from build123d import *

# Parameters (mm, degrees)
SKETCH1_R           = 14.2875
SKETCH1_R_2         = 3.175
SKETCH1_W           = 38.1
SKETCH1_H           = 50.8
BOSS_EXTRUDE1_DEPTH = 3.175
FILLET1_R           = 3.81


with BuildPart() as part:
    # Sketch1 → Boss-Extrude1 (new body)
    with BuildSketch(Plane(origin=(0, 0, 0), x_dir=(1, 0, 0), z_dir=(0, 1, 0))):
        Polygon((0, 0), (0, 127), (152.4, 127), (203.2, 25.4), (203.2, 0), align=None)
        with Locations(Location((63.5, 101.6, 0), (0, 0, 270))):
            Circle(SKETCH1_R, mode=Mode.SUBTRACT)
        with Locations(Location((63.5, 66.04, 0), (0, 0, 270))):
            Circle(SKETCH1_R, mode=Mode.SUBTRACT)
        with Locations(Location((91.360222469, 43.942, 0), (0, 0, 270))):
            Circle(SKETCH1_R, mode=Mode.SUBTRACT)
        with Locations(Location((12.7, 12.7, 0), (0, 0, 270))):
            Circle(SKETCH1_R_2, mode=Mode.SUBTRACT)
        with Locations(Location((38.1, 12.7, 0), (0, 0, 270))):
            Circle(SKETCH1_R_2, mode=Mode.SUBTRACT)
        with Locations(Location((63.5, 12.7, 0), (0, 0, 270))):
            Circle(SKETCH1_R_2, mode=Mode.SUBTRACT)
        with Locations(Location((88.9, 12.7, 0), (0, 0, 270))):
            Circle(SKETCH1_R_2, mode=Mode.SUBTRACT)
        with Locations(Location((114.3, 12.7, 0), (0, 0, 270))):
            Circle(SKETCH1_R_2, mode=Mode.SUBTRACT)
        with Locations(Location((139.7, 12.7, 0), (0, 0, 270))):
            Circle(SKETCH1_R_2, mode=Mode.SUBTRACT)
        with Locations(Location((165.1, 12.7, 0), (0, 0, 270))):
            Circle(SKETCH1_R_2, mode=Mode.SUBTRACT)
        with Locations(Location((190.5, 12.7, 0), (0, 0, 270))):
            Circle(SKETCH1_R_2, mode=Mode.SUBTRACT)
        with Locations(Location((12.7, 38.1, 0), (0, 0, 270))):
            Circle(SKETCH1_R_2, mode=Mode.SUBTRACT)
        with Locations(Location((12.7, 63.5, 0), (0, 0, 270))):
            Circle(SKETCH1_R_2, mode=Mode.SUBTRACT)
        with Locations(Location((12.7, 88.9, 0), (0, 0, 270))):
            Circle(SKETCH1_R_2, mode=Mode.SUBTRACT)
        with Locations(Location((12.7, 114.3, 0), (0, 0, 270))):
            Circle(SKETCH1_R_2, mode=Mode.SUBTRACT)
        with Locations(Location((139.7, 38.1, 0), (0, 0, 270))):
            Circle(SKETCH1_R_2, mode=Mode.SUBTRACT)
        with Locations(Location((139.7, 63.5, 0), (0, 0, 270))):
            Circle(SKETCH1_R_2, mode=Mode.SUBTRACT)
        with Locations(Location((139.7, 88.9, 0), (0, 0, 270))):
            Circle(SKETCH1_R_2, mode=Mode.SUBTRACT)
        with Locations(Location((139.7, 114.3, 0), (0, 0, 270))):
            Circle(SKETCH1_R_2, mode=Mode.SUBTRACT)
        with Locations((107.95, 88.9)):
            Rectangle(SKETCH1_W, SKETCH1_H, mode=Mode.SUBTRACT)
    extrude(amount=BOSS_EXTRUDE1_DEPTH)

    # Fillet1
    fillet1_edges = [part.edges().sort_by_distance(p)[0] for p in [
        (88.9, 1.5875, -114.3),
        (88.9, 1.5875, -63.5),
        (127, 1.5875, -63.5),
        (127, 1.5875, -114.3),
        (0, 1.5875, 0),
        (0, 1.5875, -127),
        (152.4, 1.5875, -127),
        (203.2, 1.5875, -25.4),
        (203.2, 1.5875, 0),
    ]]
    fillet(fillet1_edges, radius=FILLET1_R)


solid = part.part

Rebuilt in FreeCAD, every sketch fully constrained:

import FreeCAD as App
import Part
import Sketcher
from FreeCAD import Vector
Q = App.Units.Quantity


def edges_at(feature, points):
    """Names of the edges that pass closest to the given points."""
    edges = feature.Shape.Edges
    near = lambda p: min(range(len(edges)), key=lambda i: edges[i].distToShape(Part.Vertex(*p))[0])
    return sorted({f"Edge{near(p) + 1}" for p in points})


def add_polygon(sketch, points):
    """Adds a closed chain of lines whose ends are joined by coincident constraints."""
    first, n = sketch.GeometryCount, len(points)
    for a, b in zip(points, points[1:] + points[:1]):
        sketch.addGeometry(Part.LineSegment(App.Vector(*a, 0), App.Vector(*b, 0)), False)
    for i in range(n):
        sketch.addConstraint(Sketcher.Constraint("Coincident", first + i, 2, first + (i + 1) % n, 1))

doc = App.newDocument("Part")
body = doc.addObject("PartDesign::Body", "Body")

# Sketch on XZ plane
sketch1 = body.newObject("Sketcher::SketchObject", "Sketch")
sketch1.AttachmentSupport = (doc.getObject("XZ_Plane"), [""])
sketch1.MapMode = "FlatFace"
add_polygon(sketch1, [(0, -127), (0, 0), (203.2, 0), (203.2, -25.4), (152.4, -127)])  # lines 0-4
sketch1.addGeometry(Part.Circle(Vector(190.5, -12.7, 0), Vector(0, 0, 1), 3.2), False)  # 5
sketch1.addGeometry(Part.Circle(Vector(165.1, -12.7, 0), Vector(0, 0, 1), 3.2), False)  # 6
sketch1.addGeometry(Part.Circle(Vector(139.7, -12.7, 0), Vector(0, 0, 1), 3.2), False)  # 7
sketch1.addGeometry(Part.Circle(Vector(114.3, -12.7, 0), Vector(0, 0, 1), 3.2), False)  # 8
sketch1.addGeometry(Part.Circle(Vector(139.7, -38.1, 0), Vector(0, 0, 1), 3.2), False)  # 9
sketch1.addGeometry(Part.Circle(Vector(88.9, -12.7, 0), Vector(0, 0, 1), 3.2), False)  # 10
sketch1.addGeometry(Part.Circle(Vector(63.5, -12.7, 0), Vector(0, 0, 1), 3.2), False)  # 11
sketch1.addGeometry(Part.Circle(Vector(38.1, -12.7, 0), Vector(0, 0, 1), 3.2), False)  # 12
sketch1.addGeometry(Part.Circle(Vector(12.7, -12.7, 0), Vector(0, 0, 1), 3.2), False)  # 13
sketch1.addGeometry(Part.Circle(Vector(91.4, -43.9, 0), Vector(0, 0, 1), 14.3), False)  # 14
sketch1.addGeometry(Part.Circle(Vector(12.7, -38.1, 0), Vector(0, 0, 1), 3.2), False)  # 15
sketch1.addGeometry(Part.Circle(Vector(139.7, -63.5, 0), Vector(0, 0, 1), 3.2), False)  # 16
sketch1.addGeometry(Part.Circle(Vector(139.7, -88.9, 0), Vector(0, 0, 1), 3.2), False)  # 17
add_polygon(sketch1, [(88.9, -63.5), (88.9, -114.3), (127, -114.3), (127, -63.5)])  # lines 18-21
sketch1.addGeometry(Part.Circle(Vector(139.7, -114.3, 0), Vector(0, 0, 1), 3.2), False)  # 22
sketch1.addGeometry(Part.Circle(Vector(63.5, -66, 0), Vector(0, 0, 1), 14.3), False)  # 23
sketch1.addGeometry(Part.Circle(Vector(12.7, -63.5, 0), Vector(0, 0, 1), 3.2), False)  # 24
sketch1.addGeometry(Part.Circle(Vector(12.7, -88.9, 0), Vector(0, 0, 1), 3.2), False)  # 25
sketch1.addGeometry(Part.Circle(Vector(63.5, -101.6, 0), Vector(0, 0, 1), 14.3), False)  # 26
sketch1.addGeometry(Part.Circle(Vector(12.7, -114.3, 0), Vector(0, 0, 1), 3.2), False)  # 27
sketch1.addConstraint(Sketcher.Constraint("Vertical", 0))
sketch1.addConstraint(Sketcher.Constraint("Horizontal", 1))
sketch1.addConstraint(Sketcher.Constraint("Vertical", 2))
sketch1.addConstraint(Sketcher.Constraint("Horizontal", 4))
sketch1.addConstraint(Sketcher.Constraint("Vertical", 18))
sketch1.addConstraint(Sketcher.Constraint("Horizontal", 19))
sketch1.addConstraint(Sketcher.Constraint("Vertical", 20))
sketch1.addConstraint(Sketcher.Constraint("Horizontal", 21))
sketch1.addConstraint(Sketcher.Constraint("Coincident", 0, 2, -1, 1))
sketch1.addConstraint(Sketcher.Constraint("Equal", 5, 6))
sketch1.addConstraint(Sketcher.Constraint("Equal", 6, 7))
sketch1.addConstraint(Sketcher.Constraint("Equal", 7, 8))
sketch1.addConstraint(Sketcher.Constraint("Equal", 8, 9))
sketch1.addConstraint(Sketcher.Constraint("Equal", 9, 10))
sketch1.addConstraint(Sketcher.Constraint("Equal", 10, 11))
sketch1.addConstraint(Sketcher.Constraint("Equal", 11, 12))
sketch1.addConstraint(Sketcher.Constraint("Equal", 12, 13))
sketch1.addConstraint(Sketcher.Constraint("Equal", 13, 15))
sketch1.addConstraint(Sketcher.Constraint("Equal", 15, 16))
sketch1.addConstraint(Sketcher.Constraint("Equal", 16, 17))
sketch1.addConstraint(Sketcher.Constraint("Equal", 17, 22))
sketch1.addConstraint(Sketcher.Constraint("Equal", 14, 23))
sketch1.addConstraint(Sketcher.Constraint("Equal", 22, 24))
sketch1.addConstraint(Sketcher.Constraint("Equal", 24, 25))
sketch1.addConstraint(Sketcher.Constraint("Equal", 23, 26))
sketch1.addConstraint(Sketcher.Constraint("Equal", 25, 27))
sketch1.addConstraint(Sketcher.Constraint("Horizontal", 5, 3, 6, 3))
sketch1.addConstraint(Sketcher.Constraint("Horizontal", 6, 3, 7, 3))
sketch1.addConstraint(Sketcher.Constraint("Horizontal", 7, 3, 8, 3))
sketch1.addConstraint(Sketcher.Constraint("Horizontal", 8, 3, 10, 3))
sketch1.addConstraint(Sketcher.Constraint("Horizontal", 10, 3, 11, 3))
sketch1.addConstraint(Sketcher.Constraint("Horizontal", 11, 3, 12, 3))
sketch1.addConstraint(Sketcher.Constraint("Horizontal", 12, 3, 13, 3))
sketch1.addConstraint(Sketcher.Constraint("Horizontal", 9, 3, 15, 3))
sketch1.addConstraint(Sketcher.Constraint("Horizontal", 16, 3, 24, 3))
sketch1.addConstraint(Sketcher.Constraint("Horizontal", 17, 3, 25, 3))
sketch1.addConstraint(Sketcher.Constraint("Horizontal", 22, 3, 27, 3))
sketch1.addConstraint(Sketcher.Constraint("Horizontal", 27, 3, 18, 2))
sketch1.addConstraint(Sketcher.Constraint("Horizontal", 24, 3, 20, 2))
sketch1.addConstraint(Sketcher.Constraint("Vertical", 7, 3, 9, 3))
sketch1.addConstraint(Sketcher.Constraint("Vertical", 13, 3, 15, 3))
sketch1.addConstraint(Sketcher.Constraint("Vertical", 9, 3, 16, 3))
sketch1.addConstraint(Sketcher.Constraint("Vertical", 16, 3, 17, 3))
sketch1.addConstraint(Sketcher.Constraint("Vertical", 17, 3, 22, 3))
sketch1.addConstraint(Sketcher.Constraint("Vertical", 11, 3, 23, 3))
sketch1.addConstraint(Sketcher.Constraint("Vertical", 15, 3, 24, 3))
sketch1.addConstraint(Sketcher.Constraint("Vertical", 24, 3, 25, 3))
sketch1.addConstraint(Sketcher.Constraint("Vertical", 23, 3, 26, 3))
sketch1.addConstraint(Sketcher.Constraint("Vertical", 25, 3, 27, 3))
sketch1.addConstraint(Sketcher.Constraint("Vertical", 10, 3, 18, 2))
sketch1.addConstraint(Sketcher.Constraint("Diameter", 5, Q("0.25 in")))
sketch1.addConstraint(Sketcher.Constraint("DistanceX", 1, 1, 1, 2, Q("8 in")))
sketch1.addConstraint(Sketcher.Constraint("DistanceX", 4, 2, 4, 1, Q("6 in")))
sketch1.addConstraint(Sketcher.Constraint("DistanceY", 0, 1, 0, 2, Q("5 in")))
sketch1.addConstraint(Sketcher.Constraint("DistanceY", 2, 2, 2, 1, Q("1 in")))
sketch1.addConstraint(Sketcher.Constraint("DistanceY", 18, 2, 18, 1, Q("2 in")))
sketch1.addConstraint(Sketcher.Constraint("Diameter", 14, Q("1.125 in")))
sketch1.addConstraint(Sketcher.Constraint("DistanceX", 19, 1, 19, 2, Q("1.5 in")))
sketch1.addConstraint(Sketcher.Constraint("DistanceY", 26, 3, -1, 1, Q("4 in")))
sketch1.addConstraint(Sketcher.Constraint("DistanceX", -1, 1, 19, 2, Q("5 in")))
sketch1.addConstraint(Sketcher.Constraint("DistanceX", 6, 3, 5, 3, Q("1 in")))
sketch1.addConstraint(Sketcher.Constraint("DistanceX", 7, 3, 6, 3, Q("1 in")))
sketch1.addConstraint(Sketcher.Constraint("DistanceX", 8, 3, 7, 3, Q("1 in")))
sketch1.addConstraint(Sketcher.Constraint("DistanceY", 9, 3, 7, 3, Q("1 in")))
sketch1.addConstraint(Sketcher.Constraint("DistanceX", 10, 3, 8, 3, Q("1 in")))
sketch1.addConstraint(Sketcher.Constraint("DistanceX", 11, 3, 10, 3, Q("1 in")))
sketch1.addConstraint(Sketcher.Constraint("DistanceX", 12, 3, 11, 3, Q("1 in")))
sketch1.addConstraint(Sketcher.Constraint("DistanceX", 13, 3, 12, 3, Q("1 in")))
sketch1.addConstraint(Sketcher.Constraint("DistanceY", 16, 3, 9, 3, Q("1 in")))
sketch1.addConstraint(Sketcher.Constraint("DistanceY", 17, 3, 16, 3, Q("1 in")))
sketch1.addConstraint(Sketcher.Constraint("DistanceY", 5, 3, -1, 1, Q("0.5 in")))
sketch1.addConstraint(Sketcher.Constraint("DistanceY", 23, 3, -1, 1, Q("2.6 in")))
sketch1.addConstraint(Sketcher.Constraint("DistanceY", 14, 3, -1, 1, Q("1.73 in")))
sketch1.addConstraint(Sketcher.Constraint("DistanceX", -1, 1, 14, 3, 91.360222))
pad1 = body.newObject("PartDesign::Pad", "Pad")
pad1.Profile = sketch1
pad1.Length = Q("0.125 in")
pad1.Reversed = True
doc.recompute()

fillet = body.newObject("PartDesign::Fillet", "Fillet")
fillet.Base = (pad1, edges_at(pad1, [
    (88.9, 1.587, -114.3),
    (88.9, 1.587, -63.5),
    (127, 1.587, -63.5),
    (127, 1.587, -114.3),
    (0, 1.587, 0),
    (0, 1.587, -127),
    (152.4, 1.587, -127),
    (203.2, 1.587, -25.4),
    (203.2, 1.587, 0),
]))
fillet.Radius = Q("0.15 in")

doc.recompute()
